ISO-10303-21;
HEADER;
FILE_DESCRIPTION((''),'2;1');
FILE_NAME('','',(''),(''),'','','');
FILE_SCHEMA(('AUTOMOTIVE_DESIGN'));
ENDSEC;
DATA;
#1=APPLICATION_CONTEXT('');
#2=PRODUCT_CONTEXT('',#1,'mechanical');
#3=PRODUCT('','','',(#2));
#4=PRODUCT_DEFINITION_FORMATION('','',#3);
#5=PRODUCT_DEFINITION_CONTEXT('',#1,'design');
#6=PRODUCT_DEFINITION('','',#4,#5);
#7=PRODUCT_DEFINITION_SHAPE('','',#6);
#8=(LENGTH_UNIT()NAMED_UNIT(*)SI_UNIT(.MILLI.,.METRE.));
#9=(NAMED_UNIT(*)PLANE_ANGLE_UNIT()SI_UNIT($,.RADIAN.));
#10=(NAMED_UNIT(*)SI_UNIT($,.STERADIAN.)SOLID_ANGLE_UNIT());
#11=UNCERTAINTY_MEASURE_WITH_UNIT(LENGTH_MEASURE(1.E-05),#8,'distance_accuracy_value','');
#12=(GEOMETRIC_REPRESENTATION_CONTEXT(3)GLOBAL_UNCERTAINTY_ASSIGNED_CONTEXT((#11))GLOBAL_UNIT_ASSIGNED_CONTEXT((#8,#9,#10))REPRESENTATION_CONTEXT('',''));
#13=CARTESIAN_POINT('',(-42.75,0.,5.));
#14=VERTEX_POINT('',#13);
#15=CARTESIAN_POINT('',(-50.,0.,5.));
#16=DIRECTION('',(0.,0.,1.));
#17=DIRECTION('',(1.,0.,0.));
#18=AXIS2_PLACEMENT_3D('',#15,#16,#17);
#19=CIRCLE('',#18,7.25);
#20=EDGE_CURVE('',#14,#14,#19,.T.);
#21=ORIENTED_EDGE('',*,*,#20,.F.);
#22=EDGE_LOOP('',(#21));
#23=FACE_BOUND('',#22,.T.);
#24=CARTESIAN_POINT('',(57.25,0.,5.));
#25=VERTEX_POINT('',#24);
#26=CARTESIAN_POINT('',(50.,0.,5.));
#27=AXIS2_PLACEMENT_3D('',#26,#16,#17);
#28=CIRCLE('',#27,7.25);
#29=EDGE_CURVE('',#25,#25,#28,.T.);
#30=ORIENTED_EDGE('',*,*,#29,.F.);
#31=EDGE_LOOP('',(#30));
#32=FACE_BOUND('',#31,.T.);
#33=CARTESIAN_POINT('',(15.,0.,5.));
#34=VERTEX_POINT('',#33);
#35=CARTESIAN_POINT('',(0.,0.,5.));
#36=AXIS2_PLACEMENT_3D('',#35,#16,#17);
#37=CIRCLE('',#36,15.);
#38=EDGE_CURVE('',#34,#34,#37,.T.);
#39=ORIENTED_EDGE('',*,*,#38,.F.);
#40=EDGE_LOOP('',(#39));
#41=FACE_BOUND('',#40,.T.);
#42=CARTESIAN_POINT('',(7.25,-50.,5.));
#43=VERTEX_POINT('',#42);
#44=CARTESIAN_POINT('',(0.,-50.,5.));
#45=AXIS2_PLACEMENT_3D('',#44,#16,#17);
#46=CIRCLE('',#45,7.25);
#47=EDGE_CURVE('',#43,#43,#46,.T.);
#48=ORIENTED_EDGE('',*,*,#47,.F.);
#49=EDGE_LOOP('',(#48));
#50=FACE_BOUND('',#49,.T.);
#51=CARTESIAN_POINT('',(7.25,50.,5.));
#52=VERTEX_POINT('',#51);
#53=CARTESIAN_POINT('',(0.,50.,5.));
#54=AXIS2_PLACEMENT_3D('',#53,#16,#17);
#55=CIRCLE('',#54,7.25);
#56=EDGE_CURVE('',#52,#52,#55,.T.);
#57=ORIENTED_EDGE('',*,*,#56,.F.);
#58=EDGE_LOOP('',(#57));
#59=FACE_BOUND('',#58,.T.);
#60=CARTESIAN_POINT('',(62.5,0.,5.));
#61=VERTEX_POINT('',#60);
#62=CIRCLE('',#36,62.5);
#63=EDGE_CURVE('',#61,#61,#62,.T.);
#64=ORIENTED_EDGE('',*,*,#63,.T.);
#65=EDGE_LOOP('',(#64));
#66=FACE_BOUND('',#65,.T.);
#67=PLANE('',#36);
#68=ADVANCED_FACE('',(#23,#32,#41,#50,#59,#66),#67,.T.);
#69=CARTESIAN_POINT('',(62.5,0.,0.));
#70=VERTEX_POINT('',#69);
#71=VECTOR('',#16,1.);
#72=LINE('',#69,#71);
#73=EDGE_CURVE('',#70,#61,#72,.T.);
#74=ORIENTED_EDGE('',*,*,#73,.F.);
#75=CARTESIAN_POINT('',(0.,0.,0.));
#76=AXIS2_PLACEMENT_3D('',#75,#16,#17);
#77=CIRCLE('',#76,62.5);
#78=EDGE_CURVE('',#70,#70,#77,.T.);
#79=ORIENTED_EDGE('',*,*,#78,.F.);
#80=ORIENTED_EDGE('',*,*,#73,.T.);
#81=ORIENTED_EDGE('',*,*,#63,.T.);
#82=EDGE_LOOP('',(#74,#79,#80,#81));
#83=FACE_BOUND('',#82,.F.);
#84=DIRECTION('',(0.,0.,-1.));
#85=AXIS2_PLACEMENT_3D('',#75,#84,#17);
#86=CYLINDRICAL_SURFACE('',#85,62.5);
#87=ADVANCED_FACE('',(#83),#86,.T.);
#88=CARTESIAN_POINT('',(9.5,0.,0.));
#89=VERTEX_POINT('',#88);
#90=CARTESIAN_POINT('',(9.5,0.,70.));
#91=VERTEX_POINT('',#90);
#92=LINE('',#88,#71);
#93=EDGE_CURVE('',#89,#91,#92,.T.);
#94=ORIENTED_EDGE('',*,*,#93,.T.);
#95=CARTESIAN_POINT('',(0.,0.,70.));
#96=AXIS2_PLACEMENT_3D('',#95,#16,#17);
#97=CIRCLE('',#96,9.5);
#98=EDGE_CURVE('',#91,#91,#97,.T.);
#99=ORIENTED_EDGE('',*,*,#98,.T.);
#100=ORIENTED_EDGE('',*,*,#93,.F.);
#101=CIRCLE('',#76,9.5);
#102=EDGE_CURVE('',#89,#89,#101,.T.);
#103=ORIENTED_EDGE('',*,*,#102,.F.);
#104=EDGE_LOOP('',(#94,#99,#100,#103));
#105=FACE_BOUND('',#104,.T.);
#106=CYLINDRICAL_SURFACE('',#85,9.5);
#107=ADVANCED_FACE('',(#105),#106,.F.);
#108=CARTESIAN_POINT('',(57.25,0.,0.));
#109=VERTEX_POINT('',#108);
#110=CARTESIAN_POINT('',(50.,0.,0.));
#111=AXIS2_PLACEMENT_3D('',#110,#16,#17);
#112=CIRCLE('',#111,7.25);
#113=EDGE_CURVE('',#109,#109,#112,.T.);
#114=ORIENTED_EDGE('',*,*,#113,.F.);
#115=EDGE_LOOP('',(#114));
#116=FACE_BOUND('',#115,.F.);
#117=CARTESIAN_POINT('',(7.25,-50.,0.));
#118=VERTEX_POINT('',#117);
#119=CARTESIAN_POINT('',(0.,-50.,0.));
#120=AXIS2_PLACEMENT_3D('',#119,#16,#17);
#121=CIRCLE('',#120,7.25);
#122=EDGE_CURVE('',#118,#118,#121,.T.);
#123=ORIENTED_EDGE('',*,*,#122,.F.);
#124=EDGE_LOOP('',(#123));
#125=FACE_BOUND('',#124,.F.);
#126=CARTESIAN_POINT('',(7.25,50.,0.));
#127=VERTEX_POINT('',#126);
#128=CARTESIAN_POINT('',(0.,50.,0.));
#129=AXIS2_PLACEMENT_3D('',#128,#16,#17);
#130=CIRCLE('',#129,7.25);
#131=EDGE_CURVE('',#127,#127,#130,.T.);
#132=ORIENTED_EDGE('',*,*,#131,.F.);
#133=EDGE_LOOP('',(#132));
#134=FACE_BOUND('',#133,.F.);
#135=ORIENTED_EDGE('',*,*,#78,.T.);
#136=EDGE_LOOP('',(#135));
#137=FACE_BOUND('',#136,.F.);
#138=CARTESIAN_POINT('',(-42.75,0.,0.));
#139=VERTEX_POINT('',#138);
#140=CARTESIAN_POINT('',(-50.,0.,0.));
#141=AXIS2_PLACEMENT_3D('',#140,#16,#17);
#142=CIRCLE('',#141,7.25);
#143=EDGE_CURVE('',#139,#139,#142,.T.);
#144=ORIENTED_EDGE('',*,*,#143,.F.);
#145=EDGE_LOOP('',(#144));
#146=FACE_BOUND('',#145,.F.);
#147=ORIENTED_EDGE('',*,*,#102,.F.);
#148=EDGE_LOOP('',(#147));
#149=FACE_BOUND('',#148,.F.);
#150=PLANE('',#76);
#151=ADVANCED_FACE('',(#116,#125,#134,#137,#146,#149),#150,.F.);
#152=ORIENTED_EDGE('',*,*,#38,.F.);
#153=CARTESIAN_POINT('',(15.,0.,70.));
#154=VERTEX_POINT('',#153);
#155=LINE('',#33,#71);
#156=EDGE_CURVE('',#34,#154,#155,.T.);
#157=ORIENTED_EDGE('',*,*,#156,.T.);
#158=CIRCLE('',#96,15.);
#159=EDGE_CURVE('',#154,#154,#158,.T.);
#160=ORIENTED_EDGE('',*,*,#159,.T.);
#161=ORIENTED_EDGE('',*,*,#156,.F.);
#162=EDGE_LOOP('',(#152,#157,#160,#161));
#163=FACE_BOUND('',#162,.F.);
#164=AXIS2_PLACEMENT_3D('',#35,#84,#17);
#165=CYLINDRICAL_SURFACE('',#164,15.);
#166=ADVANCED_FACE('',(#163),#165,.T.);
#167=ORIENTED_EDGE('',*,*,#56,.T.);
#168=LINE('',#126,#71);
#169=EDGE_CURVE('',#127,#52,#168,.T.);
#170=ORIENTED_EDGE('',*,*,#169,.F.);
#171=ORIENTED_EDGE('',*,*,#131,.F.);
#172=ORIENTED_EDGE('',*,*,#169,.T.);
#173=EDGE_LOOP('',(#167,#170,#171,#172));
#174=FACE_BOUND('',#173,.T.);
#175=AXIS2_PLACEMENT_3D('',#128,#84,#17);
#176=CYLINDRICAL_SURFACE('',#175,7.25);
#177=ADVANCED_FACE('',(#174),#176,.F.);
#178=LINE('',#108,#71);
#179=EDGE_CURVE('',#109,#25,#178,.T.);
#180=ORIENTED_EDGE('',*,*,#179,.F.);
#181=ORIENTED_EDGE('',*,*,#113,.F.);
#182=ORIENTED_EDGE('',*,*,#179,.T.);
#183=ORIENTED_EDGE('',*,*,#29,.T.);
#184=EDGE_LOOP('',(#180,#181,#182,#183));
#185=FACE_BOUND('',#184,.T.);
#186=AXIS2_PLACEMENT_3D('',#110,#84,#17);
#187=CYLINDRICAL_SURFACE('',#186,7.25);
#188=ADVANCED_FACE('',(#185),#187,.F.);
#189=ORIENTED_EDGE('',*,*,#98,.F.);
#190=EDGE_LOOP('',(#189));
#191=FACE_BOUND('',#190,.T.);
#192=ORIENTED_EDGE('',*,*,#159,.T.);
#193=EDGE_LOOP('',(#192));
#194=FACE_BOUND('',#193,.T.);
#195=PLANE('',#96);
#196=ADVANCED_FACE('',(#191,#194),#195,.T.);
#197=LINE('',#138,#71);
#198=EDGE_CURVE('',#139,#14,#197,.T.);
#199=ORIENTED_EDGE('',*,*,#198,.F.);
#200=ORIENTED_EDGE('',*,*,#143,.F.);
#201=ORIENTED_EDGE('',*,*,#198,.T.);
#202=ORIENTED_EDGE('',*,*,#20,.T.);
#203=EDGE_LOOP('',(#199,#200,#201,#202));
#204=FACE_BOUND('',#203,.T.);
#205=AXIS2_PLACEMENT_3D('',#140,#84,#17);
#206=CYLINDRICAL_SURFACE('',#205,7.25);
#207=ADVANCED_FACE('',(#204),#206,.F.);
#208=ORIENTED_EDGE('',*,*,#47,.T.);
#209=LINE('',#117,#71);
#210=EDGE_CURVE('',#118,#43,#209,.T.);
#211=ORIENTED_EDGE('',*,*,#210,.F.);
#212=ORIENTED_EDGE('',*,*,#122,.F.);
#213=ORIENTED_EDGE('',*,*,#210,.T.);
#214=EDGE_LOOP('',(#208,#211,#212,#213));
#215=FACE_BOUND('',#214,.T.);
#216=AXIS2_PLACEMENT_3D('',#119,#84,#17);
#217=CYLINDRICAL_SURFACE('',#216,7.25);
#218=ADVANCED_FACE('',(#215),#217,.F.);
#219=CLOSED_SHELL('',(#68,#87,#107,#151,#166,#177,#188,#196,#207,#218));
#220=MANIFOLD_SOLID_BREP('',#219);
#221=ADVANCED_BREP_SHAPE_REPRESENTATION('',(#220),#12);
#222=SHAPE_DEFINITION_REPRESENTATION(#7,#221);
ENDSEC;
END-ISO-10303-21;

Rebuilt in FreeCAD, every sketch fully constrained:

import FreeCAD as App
import Part
import Sketcher
from FreeCAD import Vector
Q = App.Units.Quantity

doc = App.newDocument("Part")
body = doc.addObject("PartDesign::Body", "Body")

sketch1 = body.newObject("Sketcher::SketchObject", "Sketch")
sketch1.AttachmentSupport = (doc.getObject("XY_Plane"), [""])
sketch1.MapMode = "FlatFace"
sketch1.addGeometry([
    Part.Circle(Vector(0, 0, 0), Vector(0, 0, 1), 62),
    Part.Circle(Vector(0, -50, 0), Vector(0, 0, 1), 7),
    Part.Circle(Vector(-50, 0, 0), Vector(0, 0, 1), 7),
    Part.Circle(Vector(0, 0, 0), Vector(0, 0, 1), 10),
    Part.Circle(Vector(50, 0, 0), Vector(0, 0, 1), 7),
    Part.Circle(Vector(0, 50, 0), Vector(0, 0, 1), 7),
], False)
sketch1.addConstraint([
    Sketcher.Constraint("Coincident", 0, 3, -1, 1),
    Sketcher.Constraint("Coincident", 3, 3, -1, 1),
    Sketcher.Constraint("Equal", 1, 2),
    Sketcher.Constraint("Equal", 2, 4),
    Sketcher.Constraint("Equal", 4, 5),
    Sketcher.Constraint("Symmetric", 2, 3, 4, 3, -1, 1),
    Sketcher.Constraint("Symmetric", 1, 3, 5, 3, -1, 1),
    Sketcher.Constraint("PointOnObject", 1, 3, -2),
    Sketcher.Constraint("PointOnObject", 2, 3, -1),
    Sketcher.Constraint("Diameter", 0, Q("125 mm")),
    Sketcher.Constraint("Diameter", 3, Q("19 mm")),
    Sketcher.Constraint("Diameter", 1, Q("14.5 mm")),
    Sketcher.Constraint("DistanceX", 2, 3, 4, 3, Q("100 mm")),
    Sketcher.Constraint("DistanceY", 1, 3, 5, 3, Q("100 mm")),
])
pad1 = body.newObject("PartDesign::Pad", "Pad")
pad1.Profile = sketch1
pad1.Length = 5

sketch2 = body.newObject("Sketcher::SketchObject", "Sketch001")
sketch2.AttachmentSupport = (doc.getObject("XY_Plane"), [""])
sketch2.MapMode = "FlatFace"
sketch2.AttachmentOffset = App.Placement(Vector(0, 0, 5), App.Rotation())
sketch2.addGeometry([
    Part.Circle(Vector(0, 0, 0), Vector(0, 0, 1), 15),
    Part.Circle(Vector(0, 0, 0), Vector(0, 0, 1), 10),
], False)
sketch2.addConstraint([
    Sketcher.Constraint("Coincident", 0, 3, -1, 1),
    Sketcher.Constraint("Coincident", 1, 3, -1, 1),
    Sketcher.Constraint("Diameter", 0, Q("30 mm")),
    Sketcher.Constraint("Diameter", 1, Q("19 mm")),
])
pad2 = body.newObject("PartDesign::Pad", "Pad001")
pad2.Profile = sketch2
pad2.Length = 65

doc.recompute()
